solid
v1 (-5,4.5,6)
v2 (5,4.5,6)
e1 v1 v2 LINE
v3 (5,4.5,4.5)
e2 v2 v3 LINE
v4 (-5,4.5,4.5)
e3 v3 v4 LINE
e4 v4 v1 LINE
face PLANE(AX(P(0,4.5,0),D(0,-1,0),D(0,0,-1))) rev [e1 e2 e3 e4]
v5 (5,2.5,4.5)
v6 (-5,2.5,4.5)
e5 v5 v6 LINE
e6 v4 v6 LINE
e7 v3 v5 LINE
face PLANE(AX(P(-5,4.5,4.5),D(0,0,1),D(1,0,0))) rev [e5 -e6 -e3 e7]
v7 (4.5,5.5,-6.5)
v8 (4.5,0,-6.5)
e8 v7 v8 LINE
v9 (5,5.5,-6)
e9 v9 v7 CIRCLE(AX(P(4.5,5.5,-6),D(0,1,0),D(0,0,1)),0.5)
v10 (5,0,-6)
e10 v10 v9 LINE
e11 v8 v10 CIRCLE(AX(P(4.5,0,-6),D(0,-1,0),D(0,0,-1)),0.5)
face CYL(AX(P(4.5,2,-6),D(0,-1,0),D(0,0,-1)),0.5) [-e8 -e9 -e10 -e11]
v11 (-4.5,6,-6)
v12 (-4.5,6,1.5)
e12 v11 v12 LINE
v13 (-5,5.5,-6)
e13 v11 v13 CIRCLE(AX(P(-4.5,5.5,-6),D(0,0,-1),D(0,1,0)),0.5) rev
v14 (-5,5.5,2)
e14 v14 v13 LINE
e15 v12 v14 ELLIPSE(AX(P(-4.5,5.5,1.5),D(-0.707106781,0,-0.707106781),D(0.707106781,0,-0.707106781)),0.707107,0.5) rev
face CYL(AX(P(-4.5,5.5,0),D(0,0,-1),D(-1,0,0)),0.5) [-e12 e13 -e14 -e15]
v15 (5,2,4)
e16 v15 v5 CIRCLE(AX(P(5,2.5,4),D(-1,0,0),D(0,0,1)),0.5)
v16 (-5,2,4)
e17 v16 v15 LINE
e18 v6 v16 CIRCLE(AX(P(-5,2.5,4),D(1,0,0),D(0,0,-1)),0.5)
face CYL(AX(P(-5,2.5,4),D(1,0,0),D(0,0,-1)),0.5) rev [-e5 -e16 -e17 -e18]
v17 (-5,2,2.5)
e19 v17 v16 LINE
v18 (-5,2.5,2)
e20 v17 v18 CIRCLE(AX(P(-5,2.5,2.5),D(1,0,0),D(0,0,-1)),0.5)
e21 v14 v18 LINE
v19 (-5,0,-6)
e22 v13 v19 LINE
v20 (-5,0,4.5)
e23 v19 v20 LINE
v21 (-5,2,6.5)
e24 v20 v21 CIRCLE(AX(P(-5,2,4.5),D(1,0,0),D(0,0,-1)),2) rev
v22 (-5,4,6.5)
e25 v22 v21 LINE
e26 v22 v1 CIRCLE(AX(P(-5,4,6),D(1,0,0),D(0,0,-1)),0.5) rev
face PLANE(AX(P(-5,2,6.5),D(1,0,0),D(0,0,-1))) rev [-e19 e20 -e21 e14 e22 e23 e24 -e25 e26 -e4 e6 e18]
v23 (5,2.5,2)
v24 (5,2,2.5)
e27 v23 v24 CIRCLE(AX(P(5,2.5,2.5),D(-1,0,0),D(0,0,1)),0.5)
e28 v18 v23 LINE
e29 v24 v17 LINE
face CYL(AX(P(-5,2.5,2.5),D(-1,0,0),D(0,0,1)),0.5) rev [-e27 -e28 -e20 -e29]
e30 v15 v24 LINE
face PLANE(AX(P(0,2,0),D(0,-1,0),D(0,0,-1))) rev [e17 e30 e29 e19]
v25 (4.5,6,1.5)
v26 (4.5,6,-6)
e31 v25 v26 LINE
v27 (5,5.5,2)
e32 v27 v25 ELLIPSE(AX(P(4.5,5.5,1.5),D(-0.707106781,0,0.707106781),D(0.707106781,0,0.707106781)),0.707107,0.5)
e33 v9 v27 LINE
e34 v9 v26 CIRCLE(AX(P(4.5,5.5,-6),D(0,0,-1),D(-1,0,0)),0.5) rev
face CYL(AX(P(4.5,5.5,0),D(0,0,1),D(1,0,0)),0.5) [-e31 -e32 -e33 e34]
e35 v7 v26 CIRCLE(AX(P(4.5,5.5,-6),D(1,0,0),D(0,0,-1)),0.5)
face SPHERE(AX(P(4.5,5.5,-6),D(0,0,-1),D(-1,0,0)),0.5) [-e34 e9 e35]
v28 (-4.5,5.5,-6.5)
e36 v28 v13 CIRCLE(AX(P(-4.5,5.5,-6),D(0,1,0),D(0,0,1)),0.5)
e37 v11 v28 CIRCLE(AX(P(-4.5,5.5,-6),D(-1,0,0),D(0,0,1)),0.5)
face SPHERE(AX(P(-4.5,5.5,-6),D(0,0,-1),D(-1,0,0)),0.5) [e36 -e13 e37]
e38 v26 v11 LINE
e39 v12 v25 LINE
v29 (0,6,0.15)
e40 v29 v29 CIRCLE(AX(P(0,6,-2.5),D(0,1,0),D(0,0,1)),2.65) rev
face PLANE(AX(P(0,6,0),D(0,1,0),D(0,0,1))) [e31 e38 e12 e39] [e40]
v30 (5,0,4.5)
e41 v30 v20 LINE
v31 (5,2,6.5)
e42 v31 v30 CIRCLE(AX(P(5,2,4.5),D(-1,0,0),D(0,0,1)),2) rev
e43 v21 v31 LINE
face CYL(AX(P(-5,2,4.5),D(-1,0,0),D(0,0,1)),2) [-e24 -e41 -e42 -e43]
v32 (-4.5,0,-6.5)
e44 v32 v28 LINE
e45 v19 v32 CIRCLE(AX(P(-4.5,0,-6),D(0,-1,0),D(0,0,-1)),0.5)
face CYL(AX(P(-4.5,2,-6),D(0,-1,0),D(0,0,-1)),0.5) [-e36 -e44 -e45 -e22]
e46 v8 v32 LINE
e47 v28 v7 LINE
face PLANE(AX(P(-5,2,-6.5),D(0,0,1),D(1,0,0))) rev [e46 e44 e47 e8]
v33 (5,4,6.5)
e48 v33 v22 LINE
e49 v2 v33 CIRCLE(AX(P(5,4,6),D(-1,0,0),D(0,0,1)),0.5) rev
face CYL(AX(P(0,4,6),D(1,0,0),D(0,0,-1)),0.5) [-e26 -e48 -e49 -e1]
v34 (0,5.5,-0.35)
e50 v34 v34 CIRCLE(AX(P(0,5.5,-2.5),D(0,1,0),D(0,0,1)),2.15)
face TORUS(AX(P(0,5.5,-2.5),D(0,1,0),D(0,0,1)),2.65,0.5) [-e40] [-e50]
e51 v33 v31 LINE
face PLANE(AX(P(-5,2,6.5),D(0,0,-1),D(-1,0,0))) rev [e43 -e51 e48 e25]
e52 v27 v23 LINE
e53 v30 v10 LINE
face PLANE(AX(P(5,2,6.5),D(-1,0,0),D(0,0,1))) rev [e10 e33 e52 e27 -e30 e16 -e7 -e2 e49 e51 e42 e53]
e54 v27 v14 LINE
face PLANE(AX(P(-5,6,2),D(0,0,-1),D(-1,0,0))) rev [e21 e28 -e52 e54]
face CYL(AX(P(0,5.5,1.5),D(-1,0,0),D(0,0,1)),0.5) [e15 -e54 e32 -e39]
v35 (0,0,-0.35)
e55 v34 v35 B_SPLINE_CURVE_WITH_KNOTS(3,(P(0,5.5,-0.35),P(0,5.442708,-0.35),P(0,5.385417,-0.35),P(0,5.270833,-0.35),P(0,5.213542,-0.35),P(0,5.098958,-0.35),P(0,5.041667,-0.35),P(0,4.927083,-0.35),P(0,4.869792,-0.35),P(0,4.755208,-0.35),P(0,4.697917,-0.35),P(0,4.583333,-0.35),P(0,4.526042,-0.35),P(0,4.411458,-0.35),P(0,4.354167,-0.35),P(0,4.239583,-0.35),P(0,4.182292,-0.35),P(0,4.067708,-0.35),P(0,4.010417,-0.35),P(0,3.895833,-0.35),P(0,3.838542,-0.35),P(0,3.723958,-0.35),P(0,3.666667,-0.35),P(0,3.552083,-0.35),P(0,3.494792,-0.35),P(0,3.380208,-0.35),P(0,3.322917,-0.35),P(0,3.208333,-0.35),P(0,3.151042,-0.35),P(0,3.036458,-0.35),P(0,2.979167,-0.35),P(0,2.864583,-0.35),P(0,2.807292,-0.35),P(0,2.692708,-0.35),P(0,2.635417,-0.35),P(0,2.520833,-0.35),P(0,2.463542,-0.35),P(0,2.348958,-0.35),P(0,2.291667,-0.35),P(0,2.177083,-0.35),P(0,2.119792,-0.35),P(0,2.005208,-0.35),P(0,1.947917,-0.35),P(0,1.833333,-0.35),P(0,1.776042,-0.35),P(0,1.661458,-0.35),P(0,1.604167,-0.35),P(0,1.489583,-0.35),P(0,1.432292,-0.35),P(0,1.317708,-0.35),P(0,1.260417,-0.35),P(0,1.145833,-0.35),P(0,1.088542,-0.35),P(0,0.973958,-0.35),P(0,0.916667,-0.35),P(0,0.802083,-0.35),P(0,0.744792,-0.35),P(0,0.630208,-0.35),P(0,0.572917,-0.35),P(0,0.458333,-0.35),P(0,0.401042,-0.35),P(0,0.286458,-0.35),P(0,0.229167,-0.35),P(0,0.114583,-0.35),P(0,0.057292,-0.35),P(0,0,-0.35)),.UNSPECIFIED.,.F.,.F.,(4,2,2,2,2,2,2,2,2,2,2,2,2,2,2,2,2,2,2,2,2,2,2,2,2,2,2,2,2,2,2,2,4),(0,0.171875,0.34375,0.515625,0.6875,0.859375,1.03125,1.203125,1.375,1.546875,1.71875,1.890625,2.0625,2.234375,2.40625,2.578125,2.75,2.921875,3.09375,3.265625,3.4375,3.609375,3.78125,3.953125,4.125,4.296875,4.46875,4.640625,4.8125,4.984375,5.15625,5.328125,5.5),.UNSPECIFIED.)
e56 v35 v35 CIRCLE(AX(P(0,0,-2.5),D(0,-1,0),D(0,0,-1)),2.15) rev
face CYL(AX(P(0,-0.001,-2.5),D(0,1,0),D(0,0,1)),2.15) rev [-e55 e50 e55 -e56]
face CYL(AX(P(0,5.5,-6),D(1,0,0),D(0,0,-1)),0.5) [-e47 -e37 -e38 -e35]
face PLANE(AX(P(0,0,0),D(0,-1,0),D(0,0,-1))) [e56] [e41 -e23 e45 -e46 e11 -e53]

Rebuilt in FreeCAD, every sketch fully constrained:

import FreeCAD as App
import Part
import Sketcher

V = App.Vector
Q = App.Units.Quantity


def edges_at(feature, points):
    """Names of the edges that pass closest to the given points."""
    edges = feature.Shape.Edges
    near = lambda p: min(range(len(edges)), key=lambda i: edges[i].distToShape(Part.Vertex(*p))[0])
    return sorted({f"Edge{near(p) + 1}" for p in points})


def add_polygon(sketch, points):
    """Adds a closed chain of lines whose ends are joined by coincident constraints."""
    first, n = sketch.GeometryCount, len(points)
    for a, b in zip(points, points[1:] + points[:1]):
        sketch.addGeometry(Part.LineSegment(App.Vector(*a, 0), App.Vector(*b, 0)), False)
    for i in range(n):
        sketch.addConstraint(Sketcher.Constraint("Coincident", first + i, 2, first + (i + 1) % n, 1))

doc = App.newDocument("Part")
body = doc.addObject("PartDesign::Body", "Body")

# Sketch on XZ plane
sketch1 = body.newObject("Sketcher::SketchObject", "Sketch")
sketch1.AttachmentSupport = (doc.getObject("XZ_Plane"), [""])
sketch1.MapMode = "FlatFace"
add_polygon(sketch1, [(-5, -6.5), (-5, 6.5), (5, 6.5), (5, -6.5)])  # lines 0-3
sketch1.addConstraint([
    Sketcher.Constraint("Vertical", 0),
    Sketcher.Constraint("Horizontal", 1),
    Sketcher.Constraint("Vertical", 2),
    Sketcher.Constraint("Horizontal", 3),
    Sketcher.Constraint("Symmetric", 0, 2, 2, 2, -1, 1),
    Sketcher.Constraint("DistanceX", 1, 1, 1, 2, Q("10 mm")),
    Sketcher.Constraint("DistanceY", 0, 1, 0, 2, Q("13 mm")),
])
pad1 = body.newObject("PartDesign::Pad", "Pad")
pad1.Profile = sketch1
pad1.Length = 2
pad1.Reversed = True

# Sketch on XZ plane
sketch2 = body.newObject("Sketcher::SketchObject", "Sketch001")
sketch2.AttachmentSupport = (doc.getObject("XZ_Plane"), [""])
sketch2.MapMode = "FlatFace"
sketch2.AttachmentOffset = App.Placement(V(0, 0, -2), App.Rotation())
add_polygon(sketch2, [(-5, 4.5), (-5, 6.5), (5, 6.5), (5, 4.5)])  # lines 0-3
sketch2.addConstraint([
    Sketcher.Constraint("Vertical", 0),
    Sketcher.Constraint("Horizontal", 1),
    Sketcher.Constraint("Vertical", 2),
    Sketcher.Constraint("Horizontal", 3),
    Sketcher.Constraint("DistanceX", 1, 1, 1, 2, Q("10 mm")),
    Sketcher.Constraint("DistanceY", 0, 1, 0, 2, Q("2 mm")),
    Sketcher.Constraint("DistanceX", 0, 2, -1, 1, Q("5 mm")),
    Sketcher.Constraint("DistanceY", -1, 1, 0, 2, Q("6.5 mm")),
])
pad2 = body.newObject("PartDesign::Pad", "Pad001")
pad2.Profile = sketch2
pad2.Length = 2.5
pad2.Reversed = True
doc.recompute()

fillet = body.newObject("PartDesign::Fillet", "Fillet")
fillet.Base = (pad2, edges_at(pad2, [(0, 0, 6.5)]))
fillet.Radius = 2
doc.recompute()

fillet2 = body.newObject("PartDesign::Fillet", "Fillet001")
fillet2.Base = (fillet, edges_at(fillet, [(0, 4.5, 6.5)]))
fillet2.Radius = 0.5

# Sketch on XZ plane
sketch3 = body.newObject("Sketcher::SketchObject", "Sketch002")
sketch3.AttachmentSupport = (doc.getObject("XZ_Plane"), [""])
sketch3.MapMode = "FlatFace"
sketch3.AttachmentOffset = App.Placement(V(0, 0, -2), App.Rotation())
add_polygon(sketch3, [(-5, -6.5), (-5, 2), (5, 2), (5, -6.5)])  # lines 0-3
sketch3.addConstraint([
    Sketcher.Constraint("Vertical", 0),
    Sketcher.Constraint("Horizontal", 1),
    Sketcher.Constraint("Vertical", 2),
    Sketcher.Constraint("Horizontal", 3),
    Sketcher.Constraint("DistanceX", 1, 1, 1, 2, Q("10 mm")),
    Sketcher.Constraint("DistanceY", 0, 1, 0, 2, Q("8.5 mm")),
    Sketcher.Constraint("DistanceX", 0, 2, -1, 1, Q("5 mm")),
    Sketcher.Constraint("DistanceY", -1, 1, 0, 2, Q("2 mm")),
])
pad3 = body.newObject("PartDesign::Pad", "Pad002")
pad3.Profile = sketch3
pad3.Length = 4
pad3.Reversed = True

# Sketch on XZ plane
sketch4 = body.newObject("Sketcher::SketchObject", "Sketch003")
sketch4.AttachmentSupport = (doc.getObject("XZ_Plane"), [""])
sketch4.MapMode = "FlatFace"
sketch4.AttachmentOffset = App.Placement(V(0, 0, -6), App.Rotation())
sketch4.addGeometry(Part.Circle(V(0, -2.5, 0), V(0, 0, 1), 2.15), False)
sketch4.addConstraint([
    Sketcher.Constraint("PointOnObject", 0, 3, -2),
    Sketcher.Constraint("Diameter", 0, Q("4.3 mm")),
    Sketcher.Constraint("DistanceY", 0, 3, -1, 1, Q("2.5 mm")),
])
pocket1 = body.newObject("PartDesign::Pocket", "Pocket")
pocket1.Profile = sketch4
pocket1.Type = "UpToFirst"
pocket1.Reversed = True
doc.recompute()

fillet3 = body.newObject("PartDesign::Fillet", "Fillet002")
fillet3.Base = (pocket1, edges_at(pocket1, [
    (0, 2, 4.5),
    (0, 2, 2),
    (-5, 6, -2.25),
    (0, 6, 2),
    (5, 6, -2.25),
    (0, 6, -6.5),
    (-5, 3, -6.5),
    (5, 3, -6.5),
]))
fillet3.Radius = 0.5
doc.recompute()

fillet4 = body.newObject("PartDesign::Fillet", "Fillet003")
fillet4.Base = (fillet3, edges_at(fillet3, [(0, 6, -4.65)]))
fillet4.Radius = 0.5

doc.recompute()
